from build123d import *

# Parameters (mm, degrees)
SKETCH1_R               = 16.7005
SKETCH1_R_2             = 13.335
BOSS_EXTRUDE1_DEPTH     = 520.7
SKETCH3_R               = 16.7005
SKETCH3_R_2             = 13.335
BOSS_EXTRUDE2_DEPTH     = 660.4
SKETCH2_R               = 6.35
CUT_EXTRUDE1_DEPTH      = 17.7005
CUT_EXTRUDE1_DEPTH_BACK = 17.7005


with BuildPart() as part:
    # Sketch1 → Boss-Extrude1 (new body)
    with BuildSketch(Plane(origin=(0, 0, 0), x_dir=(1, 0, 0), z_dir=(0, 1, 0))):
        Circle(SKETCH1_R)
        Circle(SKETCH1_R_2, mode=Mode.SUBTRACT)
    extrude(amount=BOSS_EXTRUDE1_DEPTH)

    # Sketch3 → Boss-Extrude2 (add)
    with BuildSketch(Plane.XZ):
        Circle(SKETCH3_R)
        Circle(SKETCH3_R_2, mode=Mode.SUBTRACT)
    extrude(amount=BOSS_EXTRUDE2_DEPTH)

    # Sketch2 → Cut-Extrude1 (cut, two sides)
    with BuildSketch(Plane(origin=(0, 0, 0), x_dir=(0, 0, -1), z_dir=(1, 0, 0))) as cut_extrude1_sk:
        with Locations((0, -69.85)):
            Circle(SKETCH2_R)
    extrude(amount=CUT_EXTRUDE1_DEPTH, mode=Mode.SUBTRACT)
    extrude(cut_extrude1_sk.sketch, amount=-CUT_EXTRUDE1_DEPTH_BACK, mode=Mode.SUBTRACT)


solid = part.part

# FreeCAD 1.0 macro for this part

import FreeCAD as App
import Part
import Sketcher
from FreeCAD import Vector
Q = App.Units.Quantity

doc = App.newDocument("Part")
body = doc.addObject("PartDesign::Body", "Body")

# Sketch on XZ plane
sketch1 = doc.addObject("Sketcher::SketchObject", "Sketch")
body.addObject(sketch1)
sketch1.AttachmentSupport = (doc.XZ_Plane, [""])
sketch1.MapMode = "FlatFace"
sketch1.addGeometry(Part.Circle(Vector(0, 0, 0), Vector(0, 0, 1), 16.7005), False)
sketch1.addGeometry(Part.Circle(Vector(0, 0, 0), Vector(0, 0, 1), 13.335), False)
sketch1.addConstraint(Sketcher.Constraint("Coincident", 0, 3, -1, 1))
sketch1.addConstraint(Sketcher.Constraint("Coincident", 1, 3, -1, 1))
sketch1.addConstraint(Sketcher.Constraint("Diameter", 1, Q("1.05 in")))
sketch1.addConstraint(Sketcher.Constraint("Diameter", 0, Q("1.315 in")))
pad1 = doc.addObject("PartDesign::Pad", "Pad")
body.addObject(pad1)
pad1.Profile = sketch1
pad1.Length = Q("20.5 in")
pad1.Reversed = True

# Sketch on XZ plane
sketch2 = doc.addObject("Sketcher::SketchObject", "Sketch001")
body.addObject(sketch2)
sketch2.AttachmentSupport = (doc.XZ_Plane, [""])
sketch2.MapMode = "FlatFace"
sketch2.addGeometry(Part.Circle(Vector(0, 0, 0), Vector(0, 0, 1), 16.7005), False)
sketch2.addGeometry(Part.Circle(Vector(0, 0, 0), Vector(0, 0, 1), 13.335), False)
sketch2.addConstraint(Sketcher.Constraint("Coincident", 0, 3, -1, 1))
sketch2.addConstraint(Sketcher.Constraint("Coincident", 1, 3, -1, 1))
sketch2.addConstraint(Sketcher.Constraint("Diameter", 1, Q("1.05 in")))
sketch2.addConstraint(Sketcher.Constraint("Diameter", 0, Q("1.315 in")))
pad2 = doc.addObject("PartDesign::Pad", "Pad001")
body.addObject(pad2)
pad2.Profile = sketch2
pad2.Length = Q("26 in")

# Sketch on YZ plane
sketch3 = doc.addObject("Sketcher::SketchObject", "Sketch002")
body.addObject(sketch3)
sketch3.AttachmentSupport = (doc.YZ_Plane, [""])
sketch3.MapMode = "FlatFace"
sketch3.addGeometry(Part.Circle(Vector(-69.85, 0, 0), Vector(0, 0, 1), 6.35), False)
sketch3.addConstraint(Sketcher.Constraint("PointOnObject", 0, 3, -1))
sketch3.addConstraint(Sketcher.Constraint("Diameter", 0, Q("0.5 in")))
sketch3.addConstraint(Sketcher.Constraint("DistanceX", 0, 3, -1, 1, Q("2.75 in")))
pocket1 = doc.addObject("PartDesign::Pocket", "Pocket")
body.addObject(pocket1)
pocket1.Profile = sketch3
pocket1.Type = "ThroughAll"
pocket1.Midplane = True

doc.recompute()
